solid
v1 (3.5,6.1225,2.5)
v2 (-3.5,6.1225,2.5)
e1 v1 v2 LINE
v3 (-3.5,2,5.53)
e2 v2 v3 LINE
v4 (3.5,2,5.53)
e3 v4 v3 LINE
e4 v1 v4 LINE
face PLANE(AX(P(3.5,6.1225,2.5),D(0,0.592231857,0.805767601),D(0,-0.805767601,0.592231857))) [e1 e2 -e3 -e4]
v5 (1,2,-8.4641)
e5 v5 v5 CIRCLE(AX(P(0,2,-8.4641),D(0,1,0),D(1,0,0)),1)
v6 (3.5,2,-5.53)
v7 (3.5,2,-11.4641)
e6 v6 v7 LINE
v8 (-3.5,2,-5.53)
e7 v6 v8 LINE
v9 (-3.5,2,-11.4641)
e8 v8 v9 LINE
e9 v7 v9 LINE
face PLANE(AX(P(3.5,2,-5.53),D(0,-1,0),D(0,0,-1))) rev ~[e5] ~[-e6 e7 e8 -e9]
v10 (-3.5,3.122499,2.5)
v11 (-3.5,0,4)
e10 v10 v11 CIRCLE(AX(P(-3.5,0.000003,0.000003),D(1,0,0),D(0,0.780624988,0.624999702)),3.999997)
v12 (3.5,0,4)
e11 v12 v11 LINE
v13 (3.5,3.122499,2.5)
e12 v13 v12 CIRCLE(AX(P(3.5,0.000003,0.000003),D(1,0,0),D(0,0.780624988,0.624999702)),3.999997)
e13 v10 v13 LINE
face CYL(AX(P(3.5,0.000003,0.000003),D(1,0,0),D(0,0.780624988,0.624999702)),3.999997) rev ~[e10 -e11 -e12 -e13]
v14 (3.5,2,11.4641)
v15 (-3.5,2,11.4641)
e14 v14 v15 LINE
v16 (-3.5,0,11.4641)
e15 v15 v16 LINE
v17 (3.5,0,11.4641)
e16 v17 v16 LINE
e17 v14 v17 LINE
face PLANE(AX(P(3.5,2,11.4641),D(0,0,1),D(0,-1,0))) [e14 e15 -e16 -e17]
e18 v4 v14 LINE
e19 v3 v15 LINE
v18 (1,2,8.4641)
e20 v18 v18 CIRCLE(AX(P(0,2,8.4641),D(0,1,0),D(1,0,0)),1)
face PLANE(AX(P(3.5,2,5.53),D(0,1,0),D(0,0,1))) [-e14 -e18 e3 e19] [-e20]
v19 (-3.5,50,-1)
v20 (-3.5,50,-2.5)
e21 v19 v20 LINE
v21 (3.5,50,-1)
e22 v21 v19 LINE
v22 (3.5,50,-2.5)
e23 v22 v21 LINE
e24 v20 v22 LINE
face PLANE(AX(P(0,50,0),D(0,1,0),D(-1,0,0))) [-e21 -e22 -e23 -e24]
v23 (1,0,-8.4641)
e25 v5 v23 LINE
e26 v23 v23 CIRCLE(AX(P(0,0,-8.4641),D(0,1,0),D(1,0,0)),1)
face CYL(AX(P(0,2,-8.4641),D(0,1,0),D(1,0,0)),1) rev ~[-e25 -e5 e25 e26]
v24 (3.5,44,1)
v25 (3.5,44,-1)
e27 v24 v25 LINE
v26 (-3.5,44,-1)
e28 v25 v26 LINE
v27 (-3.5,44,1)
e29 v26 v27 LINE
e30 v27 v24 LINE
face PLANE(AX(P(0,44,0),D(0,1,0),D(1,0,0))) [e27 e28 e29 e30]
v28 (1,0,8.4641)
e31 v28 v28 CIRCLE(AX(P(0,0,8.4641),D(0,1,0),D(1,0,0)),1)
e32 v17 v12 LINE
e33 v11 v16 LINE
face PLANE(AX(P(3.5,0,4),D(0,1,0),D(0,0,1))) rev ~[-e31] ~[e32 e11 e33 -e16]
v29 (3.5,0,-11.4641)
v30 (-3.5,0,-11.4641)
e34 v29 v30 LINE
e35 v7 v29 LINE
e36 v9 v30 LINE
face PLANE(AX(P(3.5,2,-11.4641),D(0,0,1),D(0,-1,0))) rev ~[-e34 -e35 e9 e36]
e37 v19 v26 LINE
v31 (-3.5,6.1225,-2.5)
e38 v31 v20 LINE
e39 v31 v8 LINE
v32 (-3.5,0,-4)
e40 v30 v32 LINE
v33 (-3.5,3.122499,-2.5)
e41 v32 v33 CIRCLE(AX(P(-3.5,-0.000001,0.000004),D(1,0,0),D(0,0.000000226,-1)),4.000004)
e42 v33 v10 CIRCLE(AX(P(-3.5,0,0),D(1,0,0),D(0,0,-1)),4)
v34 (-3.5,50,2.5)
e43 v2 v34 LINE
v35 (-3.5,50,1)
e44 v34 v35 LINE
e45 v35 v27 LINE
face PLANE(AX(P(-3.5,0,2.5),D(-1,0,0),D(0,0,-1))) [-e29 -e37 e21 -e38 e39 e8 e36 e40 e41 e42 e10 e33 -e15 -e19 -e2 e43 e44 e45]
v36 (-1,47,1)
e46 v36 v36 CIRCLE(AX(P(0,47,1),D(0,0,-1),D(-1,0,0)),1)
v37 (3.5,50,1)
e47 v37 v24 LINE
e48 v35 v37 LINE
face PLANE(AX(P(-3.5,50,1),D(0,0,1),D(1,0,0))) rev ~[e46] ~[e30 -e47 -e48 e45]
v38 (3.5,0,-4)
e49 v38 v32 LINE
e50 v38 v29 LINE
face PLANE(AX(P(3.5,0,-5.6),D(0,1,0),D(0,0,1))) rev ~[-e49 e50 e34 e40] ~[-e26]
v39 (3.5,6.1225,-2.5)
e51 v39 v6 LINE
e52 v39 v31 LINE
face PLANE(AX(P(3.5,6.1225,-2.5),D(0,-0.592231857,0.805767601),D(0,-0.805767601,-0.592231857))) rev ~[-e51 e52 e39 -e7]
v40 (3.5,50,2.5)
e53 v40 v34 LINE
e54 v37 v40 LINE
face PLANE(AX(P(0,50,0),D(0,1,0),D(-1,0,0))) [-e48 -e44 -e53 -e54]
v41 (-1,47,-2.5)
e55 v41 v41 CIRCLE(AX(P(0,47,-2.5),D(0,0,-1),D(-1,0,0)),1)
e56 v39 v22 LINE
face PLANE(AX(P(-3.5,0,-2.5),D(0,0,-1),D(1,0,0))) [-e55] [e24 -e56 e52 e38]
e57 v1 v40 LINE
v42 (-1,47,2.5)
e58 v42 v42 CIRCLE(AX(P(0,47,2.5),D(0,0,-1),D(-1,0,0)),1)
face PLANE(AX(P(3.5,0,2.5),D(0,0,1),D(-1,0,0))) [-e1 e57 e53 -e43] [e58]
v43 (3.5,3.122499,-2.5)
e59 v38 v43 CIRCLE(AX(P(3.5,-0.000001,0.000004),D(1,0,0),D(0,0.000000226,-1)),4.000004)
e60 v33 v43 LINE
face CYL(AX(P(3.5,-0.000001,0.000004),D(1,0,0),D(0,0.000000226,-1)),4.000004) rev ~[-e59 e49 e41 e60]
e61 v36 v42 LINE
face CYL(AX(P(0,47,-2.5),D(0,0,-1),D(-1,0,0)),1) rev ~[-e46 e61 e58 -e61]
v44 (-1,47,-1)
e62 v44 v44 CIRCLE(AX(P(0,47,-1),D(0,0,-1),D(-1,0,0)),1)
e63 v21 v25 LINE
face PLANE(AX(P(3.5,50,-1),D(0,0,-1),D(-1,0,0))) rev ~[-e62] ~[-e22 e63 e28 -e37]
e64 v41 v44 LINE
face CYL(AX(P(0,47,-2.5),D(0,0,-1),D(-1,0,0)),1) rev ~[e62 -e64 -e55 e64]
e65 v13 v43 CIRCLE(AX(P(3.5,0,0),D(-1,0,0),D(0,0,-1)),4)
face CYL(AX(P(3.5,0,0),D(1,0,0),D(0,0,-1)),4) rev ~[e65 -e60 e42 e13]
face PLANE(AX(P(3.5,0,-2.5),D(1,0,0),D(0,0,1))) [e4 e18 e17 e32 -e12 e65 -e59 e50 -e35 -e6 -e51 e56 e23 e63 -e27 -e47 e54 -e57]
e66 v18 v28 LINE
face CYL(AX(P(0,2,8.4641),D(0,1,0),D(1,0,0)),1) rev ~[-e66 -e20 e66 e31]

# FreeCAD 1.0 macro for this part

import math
import FreeCAD as App
import Part
import Sketcher
Q = App.Units.Quantity

doc = App.newDocument("Part")
body = doc.addObject("PartDesign::Body", "Body")

# Sketch on XZ plane
sketch1 = body.newObject("Sketcher::SketchObject", "Sketch")
sketch1.AttachmentSupport = (doc.getObject("XZ_Plane"), [""])
sketch1.MapMode = "FlatFace"
sketch1.addGeometry([
    Part.LineSegment(App.Vector(-4, 2, 0), App.Vector(4, 2, 0)),
    Part.LineSegment(App.Vector(4, 2, 0), App.Vector(4, -2, 0)),
    Part.LineSegment(App.Vector(4, -2, 0), App.Vector(-4, -2, 0)),
    Part.LineSegment(App.Vector(-4, -2, 0), App.Vector(-4, 2, 0)),
], False)
sketch1.addConstraint([
    Sketcher.Constraint("Coincident", 0, 2, 1, 1),
    Sketcher.Constraint("Coincident", 1, 2, 2, 1),
    Sketcher.Constraint("Coincident", 2, 2, 3, 1),
    Sketcher.Constraint("Coincident", 3, 2, 0, 1),
    Sketcher.Constraint("Horizontal", 0),
    Sketcher.Constraint("Vertical", 1),
    Sketcher.Constraint("Horizontal", 2),
    Sketcher.Constraint("Vertical", 3),
    Sketcher.Constraint("Symmetric", 0, 2, 2, 2, -1, 1),
    Sketcher.Constraint("DistanceX", 0, 1, 0, 2, Q("7 mm")),
    Sketcher.Constraint("DistanceY", 1, 2, 1, 1, Q("5 mm")),
])
pad1 = body.newObject("PartDesign::Pad", "Pad")
pad1.Profile = sketch1
pad1.Length = 50
pad1.Reversed = True

# Sketch on XZ plane
sketch2 = body.newObject("Sketcher::SketchObject", "Sketch001")
sketch2.AttachmentSupport = (doc.getObject("XZ_Plane"), [""])
sketch2.MapMode = "FlatFace"
sketch2.AttachmentOffset = App.Placement(App.Vector(0, 0, -50), App.Rotation())
sketch2.addGeometry([
    Part.LineSegment(App.Vector(-3.5, -1, 0), App.Vector(-3.5, 1, 0)),
    Part.LineSegment(App.Vector(-3.5, 1, 0), App.Vector(3.5, 1, 0)),
    Part.LineSegment(App.Vector(3.5, 1, 0), App.Vector(3.5, -1, 0)),
    Part.LineSegment(App.Vector(3.5, -1, 0), App.Vector(-3.5, -1, 0)),
], False)
sketch2.addConstraint([
    Sketcher.Constraint("Coincident", 0, 2, 1, 1),
    Sketcher.Constraint("Coincident", 1, 2, 2, 1),
    Sketcher.Constraint("Coincident", 2, 2, 3, 1),
    Sketcher.Constraint("Coincident", 3, 2, 0, 1),
    Sketcher.Constraint("Vertical", 0),
    Sketcher.Constraint("Horizontal", 1),
    Sketcher.Constraint("Vertical", 2),
    Sketcher.Constraint("Horizontal", 3),
    Sketcher.Constraint("Symmetric", 0, 2, 2, 2, -1, 1),
    Sketcher.Constraint("DistanceX", 1, 1, 1, 2, Q("7 mm")),
    Sketcher.Constraint("DistanceY", 0, 1, 0, 2, Q("2 mm")),
])
pocket1 = body.newObject("PartDesign::Pocket", "Pocket")
pocket1.Profile = sketch2
pocket1.Length = 6
pocket1.Reversed = True

# Sketch on XY plane
sketch3 = body.newObject("Sketcher::SketchObject", "Sketch002")
sketch3.AttachmentSupport = (doc.getObject("XY_Plane"), [""])
sketch3.MapMode = "FlatFace"
sketch3.AttachmentOffset = App.Placement(App.Vector(0, 0, -2.5), App.Rotation())
sketch3.addGeometry(Part.Circle(App.Vector(0, 47, 0), App.Vector(0, 0, 1), 1), False)
sketch3.addConstraint([
    Sketcher.Constraint("PointOnObject", 0, 3, -2),
    Sketcher.Constraint("Diameter", 0, Q("2 mm")),
    Sketcher.Constraint("DistanceY", -1, 1, 0, 3, Q("47 mm")),
])
pocket2 = body.newObject("PartDesign::Pocket", "Pocket001")
pocket2.Profile = sketch3
pocket2.Type = "ThroughAll"
pocket2.Reversed = True

# Sketch on YZ plane
sketch4 = body.newObject("Sketcher::SketchObject", "Sketch003")
sketch4.AttachmentSupport = (doc.getObject("YZ_Plane"), [""])
sketch4.MapMode = "FlatFace"
sketch4.AttachmentOffset = App.Placement(App.Vector(0, 0, 3.5), App.Rotation())
sketch4.addGeometry(Part.Circle(App.Vector(0, 0, 0), App.Vector(0, 0, 1), 4), False)
sketch4.addConstraint([
    Sketcher.Constraint("Coincident", 0, 3, -1, 1),
    Sketcher.Constraint("Diameter", 0, Q("8 mm")),
])
pocket3 = body.newObject("PartDesign::Pocket", "Pocket002")
pocket3.Profile = sketch4
pocket3.Type = "ThroughAll"

# Sketch on YZ plane
sketch5 = body.newObject("Sketcher::SketchObject", "Sketch004")
sketch5.AttachmentSupport = (doc.getObject("YZ_Plane"), [""])
sketch5.MapMode = "FlatFace"
sketch5.AttachmentOffset = App.Placement(App.Vector(0, 0, 3.5), App.Rotation())
sketch5.addGeometry([
    Part.ArcOfCircle(Part.Circle(App.Vector(0, 0, 0), App.Vector(0, 0, 1), 4), math.radians(-90), math.radians(-39)),  # 0
    Part.LineSegment(App.Vector(0, -4, 0), App.Vector(0, -11.5, 0)),  # 1
    Part.LineSegment(App.Vector(0, -11.5, 0), App.Vector(2, -11.5, 0)),  # 2
    Part.LineSegment(App.Vector(2, -11.5, 0), App.Vector(2, -5.5, 0)),  # 3
    Part.LineSegment(App.Vector(2, -5.5, 0), App.Vector(6.1, -2.5, 0)),  # 4
    Part.LineSegment(App.Vector(6.1, -2.5, 0), App.Vector(6.1, 2.5, 0)),  # 5
    Part.LineSegment(App.Vector(6.1, 2.5, 0), App.Vector(2, 5.5, 0)),  # 6
    Part.LineSegment(App.Vector(2, 5.5, 0), App.Vector(2, 11.5, 0)),  # 7
    Part.LineSegment(App.Vector(2, 11.5, 0), App.Vector(0, 11.5, 0)),  # 8
    Part.LineSegment(App.Vector(0, 11.5, 0), App.Vector(0, 4, 0)),  # 9
    Part.ArcOfCircle(Part.Circle(App.Vector(0, 0, 0), App.Vector(0, 0, 1), 4), math.radians(39), math.radians(90)),  # 10
    Part.ArcOfCircle(Part.Circle(App.Vector(0, 0, 0), App.Vector(0, 0, 1), 4), math.radians(-39), math.radians(39)),  # 11
], False)
sketch5.addConstraint([
    Sketcher.Constraint("Coincident", 0, 1, 1, 1),
    Sketcher.Constraint("Coincident", 1, 2, 2, 1),
    Sketcher.Constraint("Coincident", 2, 2, 3, 1),
    Sketcher.Constraint("Coincident", 3, 2, 4, 1),
    Sketcher.Constraint("Coincident", 4, 2, 5, 1),
    Sketcher.Constraint("Coincident", 5, 2, 6, 1),
    Sketcher.Constraint("Coincident", 6, 2, 7, 1),
    Sketcher.Constraint("Coincident", 7, 2, 8, 1),
    Sketcher.Constraint("Coincident", 8, 2, 9, 1),
    Sketcher.Constraint("Coincident", 9, 2, 10, 2),
    Sketcher.Constraint("Tangent", 10, 1, 11, 2),
    Sketcher.Constraint("Tangent", 11, 1, 0, 2),
    Sketcher.Constraint("Vertical", 1),
    Sketcher.Constraint("Horizontal", 2),
    Sketcher.Constraint("Vertical", 3),
    Sketcher.Constraint("Vertical", 5),
    Sketcher.Constraint("Vertical", 7),
    Sketcher.Constraint("Horizontal", 8),
    Sketcher.Constraint("Vertical", 9),
    Sketcher.Constraint("Coincident", 0, 3, -1, 1),
    Sketcher.Constraint("Coincident", 10, 3, -1, 1),
    Sketcher.Constraint("Symmetric", 1, 2, 8, 2, -1, 1),
    Sketcher.Constraint("Symmetric", 3, 2, 6, 2, -1),
    Sketcher.Constraint("PointOnObject", 0, 1, -2),
    Sketcher.Constraint("Horizontal", 5, 2, 10, 1),
    Sketcher.Constraint("Horizontal", 4, 2, 11, 1),
    Sketcher.Constraint("Vertical", 10, 1, 11, 1),
    Sketcher.Constraint("Radius", 0, Q("4 mm")),
    Sketcher.Constraint("DistanceX", 2, 1, 2, 2, Q("2 mm")),
    Sketcher.Constraint("DistanceX", 10, 1, 5, 2, Q("3 mm")),
    Sketcher.Constraint("DistanceY", 5, 1, 5, 2, Q("5 mm")),
    Sketcher.Constraint("DistanceY", 1, 2, 1, 1, Q("7.464 mm")),
    Sketcher.Constraint("DistanceY", 3, 1, 3, 2, Q("5.934 mm")),
])
pad2 = body.newObject("PartDesign::Pad", "Pad001")
pad2.Profile = sketch5
pad2.Length = 7
pad2.Reversed = True

# Sketch on XZ plane
sketch6 = body.newObject("Sketcher::SketchObject", "Sketch005")
sketch6.AttachmentSupport = (doc.getObject("XZ_Plane"), [""])
sketch6.MapMode = "FlatFace"
sketch6.AttachmentOffset = App.Placement(App.Vector(0, 0, -2), App.Rotation())
sketch6.addGeometry([
    Part.Circle(App.Vector(0, 8.5, 0), App.Vector(0, 0, 1), 1),
    Part.Circle(App.Vector(0, -8.5, 0), App.Vector(0, 0, 1), 1),
], False)
sketch6.addConstraint([
    Sketcher.Constraint("Equal", 0, 1),
    Sketcher.Constraint("Symmetric", 0, 3, 1, 3, -1, 1),
    Sketcher.Constraint("PointOnObject", 0, 3, -2),
    Sketcher.Constraint("Diameter", 0, Q("2 mm")),
    Sketcher.Constraint("DistanceY", -1, 1, 0, 3, Q("8.464 mm")),
])
pocket4 = body.newObject("PartDesign::Pocket", "Pocket003")
pocket4.Profile = sketch6
pocket4.Type = "ThroughAll"
pocket4.Reversed = True

doc.recompute()
